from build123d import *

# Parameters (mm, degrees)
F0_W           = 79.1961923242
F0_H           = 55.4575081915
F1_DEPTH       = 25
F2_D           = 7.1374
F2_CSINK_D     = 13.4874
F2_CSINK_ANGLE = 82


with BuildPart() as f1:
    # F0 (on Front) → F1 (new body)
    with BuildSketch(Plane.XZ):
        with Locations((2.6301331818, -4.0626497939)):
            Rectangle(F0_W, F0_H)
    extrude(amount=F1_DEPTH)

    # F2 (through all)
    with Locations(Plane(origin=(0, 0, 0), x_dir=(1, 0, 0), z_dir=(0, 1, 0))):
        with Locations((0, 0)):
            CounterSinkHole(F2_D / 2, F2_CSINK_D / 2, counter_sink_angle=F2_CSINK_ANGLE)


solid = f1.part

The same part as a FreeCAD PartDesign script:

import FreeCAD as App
import Part
import Sketcher

V = App.Vector


def add_polygon(sketch, points):
    """Adds a closed chain of lines whose ends are joined by coincident constraints."""
    first, n = sketch.GeometryCount, len(points)
    for a, b in zip(points, points[1:] + points[:1]):
        sketch.addGeometry(Part.LineSegment(App.Vector(*a, 0), App.Vector(*b, 0)), False)
    for i in range(n):
        sketch.addConstraint(Sketcher.Constraint("Coincident", first + i, 2, first + (i + 1) % n, 1))

doc = App.newDocument("Part")
body = doc.addObject("PartDesign::Body", "Body")

# Sketch on XZ plane
sketch1 = doc.addObject("Sketcher::SketchObject", "Sketch")
body.addObject(sketch1)
sketch1.AttachmentSupport = (doc.XZ_Plane, [""])
sketch1.MapMode = "FlatFace"
add_polygon(sketch1, [(-37, 24), (-37, -32), (42, -32), (42, 24)])  # lines 0-3
sketch1.addConstraint([
    Sketcher.Constraint("Vertical", 0),
    Sketcher.Constraint("Horizontal", 1),
    Sketcher.Constraint("Vertical", 2),
    Sketcher.Constraint("Horizontal", 3),
    Sketcher.Constraint("DistanceY", 0, 2, 0, 1, 55.457508),
    Sketcher.Constraint("DistanceX", 1, 1, 1, 2, 79.196192),
    Sketcher.Constraint("DistanceX", -1, 1, 1, 2, 42.228229),
    Sketcher.Constraint("DistanceY", 0, 2, -1, 1, 31.791404),
])
pad1 = doc.addObject("PartDesign::Pad", "Pad")
body.addObject(pad1)
pad1.Profile = sketch1
pad1.Length = 25

# Sketch on XZ plane
sketch2 = doc.addObject("Sketcher::SketchObject", "Sketch001")
body.addObject(sketch2)
sketch2.AttachmentSupport = (doc.XZ_Plane, [""])
sketch2.MapMode = "FlatFace"
sketch2.addGeometry(Part.Circle(V(0, 0, 0), V(0, 0, 1), 3.6), False)
sketch2.addConstraint([
    Sketcher.Constraint("Coincident", 0, 3, -1, 1),
    Sketcher.Constraint("Diameter", 0, 7.1374),
])
doc.recompute()
hole = doc.addObject("PartDesign::Hole", "Hole")
body.addObject(hole)
hole.Profile = sketch2
hole.ThreadType = "None"
hole.Diameter = 7.1374
hole.DepthType = "ThroughAll"
hole.HoleCutType = "Countersink"
hole.HoleCutDiameter = 13.4874
hole.HoleCutCountersinkAngle = 82
hole.Reversed = True

doc.recompute()
